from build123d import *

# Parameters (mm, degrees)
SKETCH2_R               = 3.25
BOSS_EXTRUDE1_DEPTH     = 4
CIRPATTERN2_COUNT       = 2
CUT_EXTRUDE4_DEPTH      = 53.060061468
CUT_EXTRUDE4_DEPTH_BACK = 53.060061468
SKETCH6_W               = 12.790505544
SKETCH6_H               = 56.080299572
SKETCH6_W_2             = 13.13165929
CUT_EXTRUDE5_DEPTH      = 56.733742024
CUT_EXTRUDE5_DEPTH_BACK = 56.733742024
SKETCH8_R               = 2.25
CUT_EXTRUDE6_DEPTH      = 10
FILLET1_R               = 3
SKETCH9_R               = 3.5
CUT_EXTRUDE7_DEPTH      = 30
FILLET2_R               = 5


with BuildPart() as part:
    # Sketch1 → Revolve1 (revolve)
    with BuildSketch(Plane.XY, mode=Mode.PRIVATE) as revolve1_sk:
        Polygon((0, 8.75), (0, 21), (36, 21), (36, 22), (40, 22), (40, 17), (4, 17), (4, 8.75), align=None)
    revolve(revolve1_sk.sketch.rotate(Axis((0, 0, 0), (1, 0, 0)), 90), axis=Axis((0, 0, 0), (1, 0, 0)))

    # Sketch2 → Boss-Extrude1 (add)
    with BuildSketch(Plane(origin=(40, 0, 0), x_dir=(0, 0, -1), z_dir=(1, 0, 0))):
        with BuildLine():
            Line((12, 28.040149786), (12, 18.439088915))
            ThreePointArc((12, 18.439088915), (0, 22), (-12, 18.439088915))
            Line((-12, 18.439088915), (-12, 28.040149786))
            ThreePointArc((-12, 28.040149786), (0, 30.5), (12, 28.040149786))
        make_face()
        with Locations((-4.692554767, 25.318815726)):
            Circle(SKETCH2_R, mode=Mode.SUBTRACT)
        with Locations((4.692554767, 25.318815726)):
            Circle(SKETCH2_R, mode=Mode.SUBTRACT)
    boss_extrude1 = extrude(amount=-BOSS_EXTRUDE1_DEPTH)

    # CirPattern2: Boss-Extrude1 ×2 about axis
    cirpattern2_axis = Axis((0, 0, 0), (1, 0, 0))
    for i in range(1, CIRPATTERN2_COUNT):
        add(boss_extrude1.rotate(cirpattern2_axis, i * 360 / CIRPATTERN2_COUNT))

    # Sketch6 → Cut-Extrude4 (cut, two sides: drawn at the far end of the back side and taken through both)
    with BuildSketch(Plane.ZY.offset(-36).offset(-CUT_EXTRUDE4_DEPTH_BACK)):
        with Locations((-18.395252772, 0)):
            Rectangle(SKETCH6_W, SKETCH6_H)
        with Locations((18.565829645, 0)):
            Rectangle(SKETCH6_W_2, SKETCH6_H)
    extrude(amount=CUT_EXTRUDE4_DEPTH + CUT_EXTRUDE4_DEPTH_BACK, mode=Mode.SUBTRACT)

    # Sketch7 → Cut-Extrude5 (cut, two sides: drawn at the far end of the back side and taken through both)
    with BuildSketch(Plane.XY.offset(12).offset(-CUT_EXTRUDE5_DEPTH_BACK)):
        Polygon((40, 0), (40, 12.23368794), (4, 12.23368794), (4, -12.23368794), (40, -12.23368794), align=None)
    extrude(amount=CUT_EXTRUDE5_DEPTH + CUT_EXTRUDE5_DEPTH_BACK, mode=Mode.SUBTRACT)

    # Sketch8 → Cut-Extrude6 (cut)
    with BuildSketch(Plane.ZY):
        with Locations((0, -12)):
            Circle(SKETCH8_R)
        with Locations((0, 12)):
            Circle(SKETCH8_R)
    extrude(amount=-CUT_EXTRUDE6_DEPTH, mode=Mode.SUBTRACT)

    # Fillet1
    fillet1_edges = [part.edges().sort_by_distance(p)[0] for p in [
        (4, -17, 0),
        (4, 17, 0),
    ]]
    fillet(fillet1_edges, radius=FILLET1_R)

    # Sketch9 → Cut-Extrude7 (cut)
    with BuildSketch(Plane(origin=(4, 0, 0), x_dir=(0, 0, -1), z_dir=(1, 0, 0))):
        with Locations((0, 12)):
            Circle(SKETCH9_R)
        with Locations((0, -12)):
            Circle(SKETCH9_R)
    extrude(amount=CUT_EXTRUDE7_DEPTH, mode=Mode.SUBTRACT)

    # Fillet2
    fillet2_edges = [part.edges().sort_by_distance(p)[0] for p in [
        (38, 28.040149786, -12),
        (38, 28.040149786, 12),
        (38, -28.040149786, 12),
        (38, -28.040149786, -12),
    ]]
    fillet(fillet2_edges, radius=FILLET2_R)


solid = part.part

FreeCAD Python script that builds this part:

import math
import FreeCAD as App
import Part
import Sketcher
from FreeCAD import Vector
Q = App.Units.Quantity


def edges_at(feature, points):
    """Names of the edges that pass closest to the given points."""
    edges = feature.Shape.Edges
    near = lambda p: min(range(len(edges)), key=lambda i: edges[i].distToShape(Part.Vertex(*p))[0])
    return sorted({f"Edge{near(p) + 1}" for p in points})

doc = App.newDocument("Part")
params = doc.addObject("Spreadsheet::Sheet", "Params")
for row, (alias, value) in enumerate([
    ("sketch1_width", "4 mm"),
    ("sketch1_width2", "36 mm"),
    ("sketch1_height", "5 mm"),
    ("sketch1_height2", "1 mm"),
    ("sketch1_height3", "12.25 mm"),
    ("revolution_angle", "360 deg"),
    ("sketch2_radius", "22 mm"),
    ("sketch2_diameter", "6.5 mm"),
    ("sketch2_radius2", "30.5 mm"),
    ("pad1_length", "4 mm"),
    ("sketch4_width", "36 mm"),
    ("sketch5_diameter", "4.5 mm"),
    ("pocket3_length", "10 mm"),
    ("fillet_radius", "3 mm"),
    ("sketch6_diameter", "7 mm"),
    ("pocket4_length", "30 mm"),
    ("fillet2_radius", "5 mm"),
], start=1):
    params.set(f"A{row}", alias)
    params.set(f"B{row}", "=" + value)
    params.setAlias(f"B{row}", alias)

body = doc.addObject("PartDesign::Body", "Body")

sketch1 = body.newObject("Sketcher::SketchObject", "Sketch")
sketch1.AttachmentSupport = (doc.getObject("XY_Plane"), [""])
sketch1.MapMode = "FlatFace"
sketch1.addGeometry([
    Part.LineSegment(Vector(0, 21, 0), Vector(0, 8.75, 0)),
    Part.LineSegment(Vector(0, 8.75, 0), Vector(4, 8.75, 0)),
    Part.LineSegment(Vector(4, 8.75, 0), Vector(4, 17, 0)),
    Part.LineSegment(Vector(4, 17, 0), Vector(40, 17, 0)),
    Part.LineSegment(Vector(40, 17, 0), Vector(40, 22, 0)),
    Part.LineSegment(Vector(40, 22, 0), Vector(36, 22, 0)),
    Part.LineSegment(Vector(36, 22, 0), Vector(36, 21, 0)),
    Part.LineSegment(Vector(36, 21, 0), Vector(0, 21, 0)),
], False)
sketch1.addConstraint([
    Sketcher.Constraint("Coincident", 0, 2, 1, 1),
    Sketcher.Constraint("Coincident", 1, 2, 2, 1),
    Sketcher.Constraint("Coincident", 2, 2, 3, 1),
    Sketcher.Constraint("Coincident", 3, 2, 4, 1),
    Sketcher.Constraint("Coincident", 4, 2, 5, 1),
    Sketcher.Constraint("Coincident", 5, 2, 6, 1),
    Sketcher.Constraint("Coincident", 6, 2, 7, 1),
    Sketcher.Constraint("Coincident", 7, 2, 0, 1),
    Sketcher.Constraint("Vertical", 0),
    Sketcher.Constraint("Horizontal", 1),
    Sketcher.Constraint("Vertical", 2),
    Sketcher.Constraint("Horizontal", 3),
    Sketcher.Constraint("Vertical", 4),
    Sketcher.Constraint("Horizontal", 5),
    Sketcher.Constraint("Vertical", 6),
    Sketcher.Constraint("Horizontal", 7),
    Sketcher.Constraint("PointOnObject", 0, 2, -2),
    Sketcher.Constraint("Equal", 1, 5),
    Sketcher.Constraint("DistanceX", 1, 1, 1, 2, Q("4 mm")),
    Sketcher.Constraint("DistanceX", 3, 1, 3, 2, Q("36 mm")),
    Sketcher.Constraint("DistanceY", 4, 1, 4, 2, Q("5 mm")),
    Sketcher.Constraint("DistanceY", 6, 2, 6, 1, Q("1 mm")),
    Sketcher.Constraint("DistanceY", -1, 1, 2, 2, Q("17 mm")),
    Sketcher.Constraint("DistanceY", 0, 2, 0, 1, Q("12.25 mm")),
])
sketch1.setExpression("Constraints[18]", "Params.sketch1_width")
sketch1.setExpression("Constraints[19]", "Params.sketch1_width2")
sketch1.setExpression("Constraints[20]", "Params.sketch1_height")
sketch1.setExpression("Constraints[21]", "Params.sketch1_height2")
sketch1.setExpression("Constraints[23]", "Params.sketch1_height3")
revolution = body.newObject("PartDesign::Revolution", "Revolution")
revolution.Profile = sketch1
revolution.ReferenceAxis = (sketch1, ["H_Axis"])
revolution.setExpression("Angle", "Params.revolution_angle")

sketch2 = body.newObject("Sketcher::SketchObject", "Sketch001")
sketch2.AttachmentSupport = (doc.getObject("YZ_Plane"), [""])
sketch2.MapMode = "FlatFace"
sketch2.AttachmentOffset = App.Placement(Vector(0, 0, 40), App.Rotation())
sketch2.addGeometry([
    Part.LineSegment(Vector(18.439089, -12, 0), Vector(28.04015, -12, 0)),
    Part.ArcOfCircle(Part.Circle(Vector(0, 0, 0), Vector(0, 0, 1), 30.5), math.radians(-23.16888), math.radians(23.16888)),
    Part.LineSegment(Vector(28.04015, 12, 0), Vector(18.439089, 12, 0)),
    Part.ArcOfCircle(Part.Circle(Vector(0, 0, 0), Vector(0, 0, 1), 22), math.radians(-33.055731), math.radians(33.055731)),
    Part.Circle(Vector(25.318816, -4.692555, 0), Vector(0, 0, 1), 3.25),
    Part.Circle(Vector(25.318816, 4.692555, 0), Vector(0, 0, 1), 3.25),
], False)
sketch2.addConstraint([
    Sketcher.Constraint("Coincident", 0, 2, 1, 1),
    Sketcher.Constraint("Coincident", 1, 2, 2, 1),
    Sketcher.Constraint("Coincident", 2, 2, 3, 2),
    Sketcher.Constraint("Coincident", 3, 1, 0, 1),
    Sketcher.Constraint("Horizontal", 0),
    Sketcher.Constraint("Horizontal", 2),
    Sketcher.Constraint("Coincident", 1, 3, -1, 1),
    Sketcher.Constraint("Coincident", 3, 3, -1, 1),
    Sketcher.Constraint("Equal", 4, 5),
    Sketcher.Constraint("Symmetric", 4, 3, 5, 3, -1),
    Sketcher.Constraint("Vertical", 0, 2, 1, 2),
    Sketcher.Constraint("Radius", 3, Q("22 mm")),
    Sketcher.Constraint("Diameter", 4, Q("6.5 mm")),
    Sketcher.Constraint("Radius", 1, Q("30.5 mm")),
    Sketcher.Constraint("DistanceY", 0, 2, -1, 1, Q("12 mm")),
    Sketcher.Constraint("DistanceY", 4, 3, 5, 3, Q("9.38511 mm")),
    Sketcher.Constraint("DistanceX", -1, 1, 4, 3, Q("25.318816 mm")),
])
sketch2.setExpression("Constraints[11]", "Params.sketch2_radius")
sketch2.setExpression("Constraints[12]", "Params.sketch2_diameter")
sketch2.setExpression("Constraints[13]", "Params.sketch2_radius2")
pad1 = body.newObject("PartDesign::Pad", "Pad")
pad1.Profile = sketch2
pad1.setExpression("Length", "Params.pad1_length")
pad1.Reversed = True
doc.recompute()

polarpattern = body.newObject("PartDesign::PolarPattern", "PolarPattern")
polarpattern.Originals = [pad1]
polarpattern.Axis = (doc.getObject("X_Axis"), [""])
polarpattern.Angle = 360
polarpattern.Occurrences = 2
body.Tip = polarpattern

sketch3 = body.newObject("Sketcher::SketchObject", "Sketch002")
sketch3.AttachmentSupport = (doc.getObject("YZ_Plane"), [""])
sketch3.MapMode = "FlatFace"
sketch3.AttachmentOffset = App.Placement(Vector(0, 0, 36), App.Rotation())
sketch3.addGeometry([
    Part.LineSegment(Vector(28.04015, -24.790506, 0), Vector(-28.04015, -24.790506, 0)),
    Part.LineSegment(Vector(-28.04015, -24.790506, 0), Vector(-28.04015, -12, 0)),
    Part.LineSegment(Vector(-28.04015, -12, 0), Vector(28.04015, -12, 0)),
    Part.LineSegment(Vector(28.04015, -12, 0), Vector(28.04015, -24.790506, 0)),
    Part.LineSegment(Vector(28.04015, 12, 0), Vector(-28.04015, 12, 0)),
    Part.LineSegment(Vector(-28.04015, 12, 0), Vector(-28.04015, 25.131659, 0)),
    Part.LineSegment(Vector(-28.04015, 25.131659, 0), Vector(28.04015, 25.131659, 0)),
    Part.LineSegment(Vector(28.04015, 25.131659, 0), Vector(28.04015, 12, 0)),
], False)
sketch3.addConstraint([
    Sketcher.Constraint("Coincident", 0, 2, 1, 1),
    Sketcher.Constraint("Coincident", 1, 2, 2, 1),
    Sketcher.Constraint("Coincident", 2, 2, 3, 1),
    Sketcher.Constraint("Coincident", 3, 2, 0, 1),
    Sketcher.Constraint("Coincident", 4, 2, 5, 1),
    Sketcher.Constraint("Coincident", 5, 2, 6, 1),
    Sketcher.Constraint("Coincident", 6, 2, 7, 1),
    Sketcher.Constraint("Coincident", 7, 2, 4, 1),
    Sketcher.Constraint("Horizontal", 0),
    Sketcher.Constraint("Vertical", 1),
    Sketcher.Constraint("Horizontal", 2),
    Sketcher.Constraint("Vertical", 3),
    Sketcher.Constraint("Horizontal", 4),
    Sketcher.Constraint("Vertical", 5),
    Sketcher.Constraint("Horizontal", 6),
    Sketcher.Constraint("Vertical", 7),
    Sketcher.Constraint("Symmetric", 2, 2, 4, 2, -1, 1),
    Sketcher.Constraint("Vertical", 1, 2, 4, 2),
    Sketcher.Constraint("Vertical", 3, 2, 6, 2),
    Sketcher.Constraint("DistanceY", 1, 2, -1, 1, Q("12 mm")),
    Sketcher.Constraint("DistanceX", 0, 2, 0, 1, Q("56.0803 mm")),
    Sketcher.Constraint("DistanceY", 5, 1, 5, 2, Q("13.131659 mm")),
    Sketcher.Constraint("DistanceY", 1, 1, 1, 2, Q("12.790506 mm")),
])
pocket1 = body.newObject("PartDesign::Pocket", "Pocket")
pocket1.Profile = sketch3
pocket1.Type = "ThroughAll"
pocket1.Midplane = True

sketch4 = body.newObject("Sketcher::SketchObject", "Sketch003")
sketch4.AttachmentSupport = (doc.getObject("XY_Plane"), [""])
sketch4.MapMode = "FlatFace"
sketch4.AttachmentOffset = App.Placement(Vector(0, 0, 12), App.Rotation())
sketch4.addGeometry([
    Part.LineSegment(Vector(40, 12.233688, 0), Vector(4, 12.233688, 0)),
    Part.LineSegment(Vector(4, 12.233688, 0), Vector(4, -12.233688, 0)),
    Part.LineSegment(Vector(4, -12.233688, 0), Vector(40, -12.233688, 0)),
    Part.LineSegment(Vector(40, -12.233688, 0), Vector(40, 12.233688, 0)),
], False)
sketch4.addConstraint([
    Sketcher.Constraint("Coincident", 0, 2, 1, 1),
    Sketcher.Constraint("Coincident", 1, 2, 2, 1),
    Sketcher.Constraint("Coincident", 2, 2, 3, 1),
    Sketcher.Constraint("Coincident", 3, 2, 0, 1),
    Sketcher.Constraint("Horizontal", 0),
    Sketcher.Constraint("Vertical", 1),
    Sketcher.Constraint("Horizontal", 2),
    Sketcher.Constraint("Vertical", 3),
    Sketcher.Constraint("DistanceX", 0, 2, 0, 1, Q("36 mm")),
    Sketcher.Constraint("DistanceX", -1, 1, 0, 2, Q("4 mm")),
    Sketcher.Constraint("DistanceY", 1, 2, 1, 1, Q("24.467376 mm")),
    Sketcher.Constraint("DistanceY", -1, 1, 0, 2, Q("12.233688 mm")),
])
sketch4.setExpression("Constraints[8]", "Params.sketch4_width")
pocket2 = body.newObject("PartDesign::Pocket", "Pocket001")
pocket2.Profile = sketch4
pocket2.Type = "ThroughAll"
pocket2.Midplane = True

sketch5 = body.newObject("Sketcher::SketchObject", "Sketch004")
sketch5.AttachmentSupport = (doc.getObject("YZ_Plane"), [""])
sketch5.MapMode = "FlatFace"
sketch5.addGeometry([
    Part.Circle(Vector(-12, 0, 0), Vector(0, 0, 1), 2.25),
    Part.Circle(Vector(12, 0, 0), Vector(0, 0, 1), 2.25),
], False)
sketch5.addConstraint([
    Sketcher.Constraint("Equal", 0, 1),
    Sketcher.Constraint("Symmetric", 0, 3, 1, 3, -1, 1),
    Sketcher.Constraint("PointOnObject", 0, 3, -1),
    Sketcher.Constraint("Diameter", 0, Q("4.5 mm")),
    Sketcher.Constraint("DistanceX", 0, 3, -1, 1, Q("12 mm")),
])
sketch5.setExpression("Constraints[3]", "Params.sketch5_diameter")
pocket3 = body.newObject("PartDesign::Pocket", "Pocket002")
pocket3.Profile = sketch5
pocket3.setExpression("Length", "Params.pocket3_length")
pocket3.Reversed = True
doc.recompute()

fillet = body.newObject("PartDesign::Fillet", "Fillet")
fillet.Base = (pocket3, edges_at(pocket3, [(4, -17, 0), (4, 17, 0)]))
fillet.setExpression("Radius", "Params.fillet_radius")

sketch6 = body.newObject("Sketcher::SketchObject", "Sketch005")
sketch6.AttachmentSupport = (doc.getObject("YZ_Plane"), [""])
sketch6.MapMode = "FlatFace"
sketch6.AttachmentOffset = App.Placement(Vector(0, 0, 4), App.Rotation())
sketch6.addGeometry([
    Part.Circle(Vector(12, 0, 0), Vector(0, 0, 1), 3.5),
    Part.Circle(Vector(-12, 0, 0), Vector(0, 0, 1), 3.5),
], False)
sketch6.addConstraint([
    Sketcher.Constraint("Equal", 0, 1),
    Sketcher.Constraint("Symmetric", 0, 3, 1, 3, -1, 1),
    Sketcher.Constraint("PointOnObject", 0, 3, -1),
    Sketcher.Constraint("Diameter", 0, Q("7 mm")),
    Sketcher.Constraint("DistanceX", -1, 1, 0, 3, Q("12 mm")),
])
sketch6.setExpression("Constraints[3]", "Params.sketch6_diameter")
pocket4 = body.newObject("PartDesign::Pocket", "Pocket003")
pocket4.Profile = sketch6
pocket4.setExpression("Length", "Params.pocket4_length")
pocket4.Reversed = True
doc.recompute()

fillet2 = body.newObject("PartDesign::Fillet", "Fillet001")
fillet2.Base = (pocket4, edges_at(pocket4, [
    (38, 28.04, -12),
    (38, 28.04, 12),
    (38, -28.04, 12),
    (38, -28.04, -12),
]))
fillet2.setExpression("Radius", "Params.fillet2_radius")

doc.recompute()
